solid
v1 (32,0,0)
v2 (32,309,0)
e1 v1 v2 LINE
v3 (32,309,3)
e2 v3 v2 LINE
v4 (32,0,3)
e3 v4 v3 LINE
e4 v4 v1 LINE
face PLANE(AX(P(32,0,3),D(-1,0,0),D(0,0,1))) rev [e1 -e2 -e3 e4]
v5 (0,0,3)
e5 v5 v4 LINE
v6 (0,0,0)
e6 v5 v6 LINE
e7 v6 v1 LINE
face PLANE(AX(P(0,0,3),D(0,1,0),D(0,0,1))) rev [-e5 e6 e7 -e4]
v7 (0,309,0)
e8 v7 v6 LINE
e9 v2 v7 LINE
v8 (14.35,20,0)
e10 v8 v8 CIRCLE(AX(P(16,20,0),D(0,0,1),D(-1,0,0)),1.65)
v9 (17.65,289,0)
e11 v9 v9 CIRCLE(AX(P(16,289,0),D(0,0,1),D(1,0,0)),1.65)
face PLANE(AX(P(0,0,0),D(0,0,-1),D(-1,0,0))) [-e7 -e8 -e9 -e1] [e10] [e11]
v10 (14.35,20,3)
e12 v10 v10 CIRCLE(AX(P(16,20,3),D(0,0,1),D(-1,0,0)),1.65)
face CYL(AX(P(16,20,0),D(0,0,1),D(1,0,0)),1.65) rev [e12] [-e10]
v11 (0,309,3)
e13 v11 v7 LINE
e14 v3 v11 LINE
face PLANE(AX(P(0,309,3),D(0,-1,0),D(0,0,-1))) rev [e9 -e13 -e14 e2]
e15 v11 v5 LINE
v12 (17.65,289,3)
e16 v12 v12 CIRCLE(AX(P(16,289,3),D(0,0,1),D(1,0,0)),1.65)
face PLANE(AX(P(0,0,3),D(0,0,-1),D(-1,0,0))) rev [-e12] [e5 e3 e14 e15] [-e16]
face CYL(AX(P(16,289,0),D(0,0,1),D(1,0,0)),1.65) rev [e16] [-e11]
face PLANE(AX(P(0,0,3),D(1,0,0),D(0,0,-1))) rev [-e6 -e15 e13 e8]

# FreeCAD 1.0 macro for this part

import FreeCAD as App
import Part
import Sketcher

doc = App.newDocument("Part")
body = doc.addObject("PartDesign::Body", "Body")

sketch1 = body.newObject("Sketcher::SketchObject", "Sketch")
sketch1.AttachmentSupport = (doc.getObject("XY_Plane"), [""])
sketch1.MapMode = "FlatFace"
sketch1.addGeometry(Part.LineSegment(App.Vector(0, 309, 0), App.Vector(0, 0, 0)), False)
sketch1.addGeometry(Part.LineSegment(App.Vector(0, 0, 0), App.Vector(32, 0, 0)), False)
sketch1.addGeometry(Part.LineSegment(App.Vector(32, 0, 0), App.Vector(32, 309, 0)), False)
sketch1.addGeometry(Part.LineSegment(App.Vector(32, 309, 0), App.Vector(0, 309, 0)), False)
sketch1.addConstraint(Sketcher.Constraint("Coincident", 0, 2, 1, 1))
sketch1.addConstraint(Sketcher.Constraint("Coincident", 1, 2, 2, 1))
sketch1.addConstraint(Sketcher.Constraint("Coincident", 2, 2, 3, 1))
sketch1.addConstraint(Sketcher.Constraint("Coincident", 3, 2, 0, 1))
sketch1.addConstraint(Sketcher.Constraint("Vertical", 0))
sketch1.addConstraint(Sketcher.Constraint("Horizontal", 1))
sketch1.addConstraint(Sketcher.Constraint("Vertical", 2))
sketch1.addConstraint(Sketcher.Constraint("Horizontal", 3))
sketch1.addConstraint(Sketcher.Constraint("Coincident", 0, 2, -1, 1))
sketch1.addConstraint(Sketcher.Constraint("DistanceX", 1, 1, 1, 2, 32.0))
sketch1.addConstraint(Sketcher.Constraint("DistanceY", 0, 2, 0, 1, 309.0))
pad1 = body.newObject("PartDesign::Pad", "Pad")
pad1.Profile = sketch1
pad1.Length = 3

sketch2 = body.newObject("Sketcher::SketchObject", "Sketch001")
sketch2.AttachmentSupport = (doc.getObject("XY_Plane"), [""])
sketch2.MapMode = "FlatFace"
sketch2.AttachmentOffset = App.Placement(App.Vector(0, 0, 3), App.Rotation())
sketch2.addGeometry(Part.Circle(App.Vector(16, 289, 0), App.Vector(0, 0, 1), 1.65), False)
sketch2.addGeometry(Part.Circle(App.Vector(16, 20, 0), App.Vector(0, 0, 1), 1.65), False)
sketch2.addConstraint(Sketcher.Constraint("Equal", 0, 1))
sketch2.addConstraint(Sketcher.Constraint("Vertical", 0, 3, 1, 3))
sketch2.addConstraint(Sketcher.Constraint("Diameter", 0, 3.3))
sketch2.addConstraint(Sketcher.Constraint("DistanceX", -1, 1, 0, 3, 16.0))
sketch2.addConstraint(Sketcher.Constraint("DistanceY", -1, 1, 0, 3, 289.0))
sketch2.addConstraint(Sketcher.Constraint("DistanceY", -1, 1, 1, 3, 20.0))
pocket1 = body.newObject("PartDesign::Pocket", "Pocket")
pocket1.Profile = sketch2
pocket1.Type = "ThroughAll"

doc.recompute()
